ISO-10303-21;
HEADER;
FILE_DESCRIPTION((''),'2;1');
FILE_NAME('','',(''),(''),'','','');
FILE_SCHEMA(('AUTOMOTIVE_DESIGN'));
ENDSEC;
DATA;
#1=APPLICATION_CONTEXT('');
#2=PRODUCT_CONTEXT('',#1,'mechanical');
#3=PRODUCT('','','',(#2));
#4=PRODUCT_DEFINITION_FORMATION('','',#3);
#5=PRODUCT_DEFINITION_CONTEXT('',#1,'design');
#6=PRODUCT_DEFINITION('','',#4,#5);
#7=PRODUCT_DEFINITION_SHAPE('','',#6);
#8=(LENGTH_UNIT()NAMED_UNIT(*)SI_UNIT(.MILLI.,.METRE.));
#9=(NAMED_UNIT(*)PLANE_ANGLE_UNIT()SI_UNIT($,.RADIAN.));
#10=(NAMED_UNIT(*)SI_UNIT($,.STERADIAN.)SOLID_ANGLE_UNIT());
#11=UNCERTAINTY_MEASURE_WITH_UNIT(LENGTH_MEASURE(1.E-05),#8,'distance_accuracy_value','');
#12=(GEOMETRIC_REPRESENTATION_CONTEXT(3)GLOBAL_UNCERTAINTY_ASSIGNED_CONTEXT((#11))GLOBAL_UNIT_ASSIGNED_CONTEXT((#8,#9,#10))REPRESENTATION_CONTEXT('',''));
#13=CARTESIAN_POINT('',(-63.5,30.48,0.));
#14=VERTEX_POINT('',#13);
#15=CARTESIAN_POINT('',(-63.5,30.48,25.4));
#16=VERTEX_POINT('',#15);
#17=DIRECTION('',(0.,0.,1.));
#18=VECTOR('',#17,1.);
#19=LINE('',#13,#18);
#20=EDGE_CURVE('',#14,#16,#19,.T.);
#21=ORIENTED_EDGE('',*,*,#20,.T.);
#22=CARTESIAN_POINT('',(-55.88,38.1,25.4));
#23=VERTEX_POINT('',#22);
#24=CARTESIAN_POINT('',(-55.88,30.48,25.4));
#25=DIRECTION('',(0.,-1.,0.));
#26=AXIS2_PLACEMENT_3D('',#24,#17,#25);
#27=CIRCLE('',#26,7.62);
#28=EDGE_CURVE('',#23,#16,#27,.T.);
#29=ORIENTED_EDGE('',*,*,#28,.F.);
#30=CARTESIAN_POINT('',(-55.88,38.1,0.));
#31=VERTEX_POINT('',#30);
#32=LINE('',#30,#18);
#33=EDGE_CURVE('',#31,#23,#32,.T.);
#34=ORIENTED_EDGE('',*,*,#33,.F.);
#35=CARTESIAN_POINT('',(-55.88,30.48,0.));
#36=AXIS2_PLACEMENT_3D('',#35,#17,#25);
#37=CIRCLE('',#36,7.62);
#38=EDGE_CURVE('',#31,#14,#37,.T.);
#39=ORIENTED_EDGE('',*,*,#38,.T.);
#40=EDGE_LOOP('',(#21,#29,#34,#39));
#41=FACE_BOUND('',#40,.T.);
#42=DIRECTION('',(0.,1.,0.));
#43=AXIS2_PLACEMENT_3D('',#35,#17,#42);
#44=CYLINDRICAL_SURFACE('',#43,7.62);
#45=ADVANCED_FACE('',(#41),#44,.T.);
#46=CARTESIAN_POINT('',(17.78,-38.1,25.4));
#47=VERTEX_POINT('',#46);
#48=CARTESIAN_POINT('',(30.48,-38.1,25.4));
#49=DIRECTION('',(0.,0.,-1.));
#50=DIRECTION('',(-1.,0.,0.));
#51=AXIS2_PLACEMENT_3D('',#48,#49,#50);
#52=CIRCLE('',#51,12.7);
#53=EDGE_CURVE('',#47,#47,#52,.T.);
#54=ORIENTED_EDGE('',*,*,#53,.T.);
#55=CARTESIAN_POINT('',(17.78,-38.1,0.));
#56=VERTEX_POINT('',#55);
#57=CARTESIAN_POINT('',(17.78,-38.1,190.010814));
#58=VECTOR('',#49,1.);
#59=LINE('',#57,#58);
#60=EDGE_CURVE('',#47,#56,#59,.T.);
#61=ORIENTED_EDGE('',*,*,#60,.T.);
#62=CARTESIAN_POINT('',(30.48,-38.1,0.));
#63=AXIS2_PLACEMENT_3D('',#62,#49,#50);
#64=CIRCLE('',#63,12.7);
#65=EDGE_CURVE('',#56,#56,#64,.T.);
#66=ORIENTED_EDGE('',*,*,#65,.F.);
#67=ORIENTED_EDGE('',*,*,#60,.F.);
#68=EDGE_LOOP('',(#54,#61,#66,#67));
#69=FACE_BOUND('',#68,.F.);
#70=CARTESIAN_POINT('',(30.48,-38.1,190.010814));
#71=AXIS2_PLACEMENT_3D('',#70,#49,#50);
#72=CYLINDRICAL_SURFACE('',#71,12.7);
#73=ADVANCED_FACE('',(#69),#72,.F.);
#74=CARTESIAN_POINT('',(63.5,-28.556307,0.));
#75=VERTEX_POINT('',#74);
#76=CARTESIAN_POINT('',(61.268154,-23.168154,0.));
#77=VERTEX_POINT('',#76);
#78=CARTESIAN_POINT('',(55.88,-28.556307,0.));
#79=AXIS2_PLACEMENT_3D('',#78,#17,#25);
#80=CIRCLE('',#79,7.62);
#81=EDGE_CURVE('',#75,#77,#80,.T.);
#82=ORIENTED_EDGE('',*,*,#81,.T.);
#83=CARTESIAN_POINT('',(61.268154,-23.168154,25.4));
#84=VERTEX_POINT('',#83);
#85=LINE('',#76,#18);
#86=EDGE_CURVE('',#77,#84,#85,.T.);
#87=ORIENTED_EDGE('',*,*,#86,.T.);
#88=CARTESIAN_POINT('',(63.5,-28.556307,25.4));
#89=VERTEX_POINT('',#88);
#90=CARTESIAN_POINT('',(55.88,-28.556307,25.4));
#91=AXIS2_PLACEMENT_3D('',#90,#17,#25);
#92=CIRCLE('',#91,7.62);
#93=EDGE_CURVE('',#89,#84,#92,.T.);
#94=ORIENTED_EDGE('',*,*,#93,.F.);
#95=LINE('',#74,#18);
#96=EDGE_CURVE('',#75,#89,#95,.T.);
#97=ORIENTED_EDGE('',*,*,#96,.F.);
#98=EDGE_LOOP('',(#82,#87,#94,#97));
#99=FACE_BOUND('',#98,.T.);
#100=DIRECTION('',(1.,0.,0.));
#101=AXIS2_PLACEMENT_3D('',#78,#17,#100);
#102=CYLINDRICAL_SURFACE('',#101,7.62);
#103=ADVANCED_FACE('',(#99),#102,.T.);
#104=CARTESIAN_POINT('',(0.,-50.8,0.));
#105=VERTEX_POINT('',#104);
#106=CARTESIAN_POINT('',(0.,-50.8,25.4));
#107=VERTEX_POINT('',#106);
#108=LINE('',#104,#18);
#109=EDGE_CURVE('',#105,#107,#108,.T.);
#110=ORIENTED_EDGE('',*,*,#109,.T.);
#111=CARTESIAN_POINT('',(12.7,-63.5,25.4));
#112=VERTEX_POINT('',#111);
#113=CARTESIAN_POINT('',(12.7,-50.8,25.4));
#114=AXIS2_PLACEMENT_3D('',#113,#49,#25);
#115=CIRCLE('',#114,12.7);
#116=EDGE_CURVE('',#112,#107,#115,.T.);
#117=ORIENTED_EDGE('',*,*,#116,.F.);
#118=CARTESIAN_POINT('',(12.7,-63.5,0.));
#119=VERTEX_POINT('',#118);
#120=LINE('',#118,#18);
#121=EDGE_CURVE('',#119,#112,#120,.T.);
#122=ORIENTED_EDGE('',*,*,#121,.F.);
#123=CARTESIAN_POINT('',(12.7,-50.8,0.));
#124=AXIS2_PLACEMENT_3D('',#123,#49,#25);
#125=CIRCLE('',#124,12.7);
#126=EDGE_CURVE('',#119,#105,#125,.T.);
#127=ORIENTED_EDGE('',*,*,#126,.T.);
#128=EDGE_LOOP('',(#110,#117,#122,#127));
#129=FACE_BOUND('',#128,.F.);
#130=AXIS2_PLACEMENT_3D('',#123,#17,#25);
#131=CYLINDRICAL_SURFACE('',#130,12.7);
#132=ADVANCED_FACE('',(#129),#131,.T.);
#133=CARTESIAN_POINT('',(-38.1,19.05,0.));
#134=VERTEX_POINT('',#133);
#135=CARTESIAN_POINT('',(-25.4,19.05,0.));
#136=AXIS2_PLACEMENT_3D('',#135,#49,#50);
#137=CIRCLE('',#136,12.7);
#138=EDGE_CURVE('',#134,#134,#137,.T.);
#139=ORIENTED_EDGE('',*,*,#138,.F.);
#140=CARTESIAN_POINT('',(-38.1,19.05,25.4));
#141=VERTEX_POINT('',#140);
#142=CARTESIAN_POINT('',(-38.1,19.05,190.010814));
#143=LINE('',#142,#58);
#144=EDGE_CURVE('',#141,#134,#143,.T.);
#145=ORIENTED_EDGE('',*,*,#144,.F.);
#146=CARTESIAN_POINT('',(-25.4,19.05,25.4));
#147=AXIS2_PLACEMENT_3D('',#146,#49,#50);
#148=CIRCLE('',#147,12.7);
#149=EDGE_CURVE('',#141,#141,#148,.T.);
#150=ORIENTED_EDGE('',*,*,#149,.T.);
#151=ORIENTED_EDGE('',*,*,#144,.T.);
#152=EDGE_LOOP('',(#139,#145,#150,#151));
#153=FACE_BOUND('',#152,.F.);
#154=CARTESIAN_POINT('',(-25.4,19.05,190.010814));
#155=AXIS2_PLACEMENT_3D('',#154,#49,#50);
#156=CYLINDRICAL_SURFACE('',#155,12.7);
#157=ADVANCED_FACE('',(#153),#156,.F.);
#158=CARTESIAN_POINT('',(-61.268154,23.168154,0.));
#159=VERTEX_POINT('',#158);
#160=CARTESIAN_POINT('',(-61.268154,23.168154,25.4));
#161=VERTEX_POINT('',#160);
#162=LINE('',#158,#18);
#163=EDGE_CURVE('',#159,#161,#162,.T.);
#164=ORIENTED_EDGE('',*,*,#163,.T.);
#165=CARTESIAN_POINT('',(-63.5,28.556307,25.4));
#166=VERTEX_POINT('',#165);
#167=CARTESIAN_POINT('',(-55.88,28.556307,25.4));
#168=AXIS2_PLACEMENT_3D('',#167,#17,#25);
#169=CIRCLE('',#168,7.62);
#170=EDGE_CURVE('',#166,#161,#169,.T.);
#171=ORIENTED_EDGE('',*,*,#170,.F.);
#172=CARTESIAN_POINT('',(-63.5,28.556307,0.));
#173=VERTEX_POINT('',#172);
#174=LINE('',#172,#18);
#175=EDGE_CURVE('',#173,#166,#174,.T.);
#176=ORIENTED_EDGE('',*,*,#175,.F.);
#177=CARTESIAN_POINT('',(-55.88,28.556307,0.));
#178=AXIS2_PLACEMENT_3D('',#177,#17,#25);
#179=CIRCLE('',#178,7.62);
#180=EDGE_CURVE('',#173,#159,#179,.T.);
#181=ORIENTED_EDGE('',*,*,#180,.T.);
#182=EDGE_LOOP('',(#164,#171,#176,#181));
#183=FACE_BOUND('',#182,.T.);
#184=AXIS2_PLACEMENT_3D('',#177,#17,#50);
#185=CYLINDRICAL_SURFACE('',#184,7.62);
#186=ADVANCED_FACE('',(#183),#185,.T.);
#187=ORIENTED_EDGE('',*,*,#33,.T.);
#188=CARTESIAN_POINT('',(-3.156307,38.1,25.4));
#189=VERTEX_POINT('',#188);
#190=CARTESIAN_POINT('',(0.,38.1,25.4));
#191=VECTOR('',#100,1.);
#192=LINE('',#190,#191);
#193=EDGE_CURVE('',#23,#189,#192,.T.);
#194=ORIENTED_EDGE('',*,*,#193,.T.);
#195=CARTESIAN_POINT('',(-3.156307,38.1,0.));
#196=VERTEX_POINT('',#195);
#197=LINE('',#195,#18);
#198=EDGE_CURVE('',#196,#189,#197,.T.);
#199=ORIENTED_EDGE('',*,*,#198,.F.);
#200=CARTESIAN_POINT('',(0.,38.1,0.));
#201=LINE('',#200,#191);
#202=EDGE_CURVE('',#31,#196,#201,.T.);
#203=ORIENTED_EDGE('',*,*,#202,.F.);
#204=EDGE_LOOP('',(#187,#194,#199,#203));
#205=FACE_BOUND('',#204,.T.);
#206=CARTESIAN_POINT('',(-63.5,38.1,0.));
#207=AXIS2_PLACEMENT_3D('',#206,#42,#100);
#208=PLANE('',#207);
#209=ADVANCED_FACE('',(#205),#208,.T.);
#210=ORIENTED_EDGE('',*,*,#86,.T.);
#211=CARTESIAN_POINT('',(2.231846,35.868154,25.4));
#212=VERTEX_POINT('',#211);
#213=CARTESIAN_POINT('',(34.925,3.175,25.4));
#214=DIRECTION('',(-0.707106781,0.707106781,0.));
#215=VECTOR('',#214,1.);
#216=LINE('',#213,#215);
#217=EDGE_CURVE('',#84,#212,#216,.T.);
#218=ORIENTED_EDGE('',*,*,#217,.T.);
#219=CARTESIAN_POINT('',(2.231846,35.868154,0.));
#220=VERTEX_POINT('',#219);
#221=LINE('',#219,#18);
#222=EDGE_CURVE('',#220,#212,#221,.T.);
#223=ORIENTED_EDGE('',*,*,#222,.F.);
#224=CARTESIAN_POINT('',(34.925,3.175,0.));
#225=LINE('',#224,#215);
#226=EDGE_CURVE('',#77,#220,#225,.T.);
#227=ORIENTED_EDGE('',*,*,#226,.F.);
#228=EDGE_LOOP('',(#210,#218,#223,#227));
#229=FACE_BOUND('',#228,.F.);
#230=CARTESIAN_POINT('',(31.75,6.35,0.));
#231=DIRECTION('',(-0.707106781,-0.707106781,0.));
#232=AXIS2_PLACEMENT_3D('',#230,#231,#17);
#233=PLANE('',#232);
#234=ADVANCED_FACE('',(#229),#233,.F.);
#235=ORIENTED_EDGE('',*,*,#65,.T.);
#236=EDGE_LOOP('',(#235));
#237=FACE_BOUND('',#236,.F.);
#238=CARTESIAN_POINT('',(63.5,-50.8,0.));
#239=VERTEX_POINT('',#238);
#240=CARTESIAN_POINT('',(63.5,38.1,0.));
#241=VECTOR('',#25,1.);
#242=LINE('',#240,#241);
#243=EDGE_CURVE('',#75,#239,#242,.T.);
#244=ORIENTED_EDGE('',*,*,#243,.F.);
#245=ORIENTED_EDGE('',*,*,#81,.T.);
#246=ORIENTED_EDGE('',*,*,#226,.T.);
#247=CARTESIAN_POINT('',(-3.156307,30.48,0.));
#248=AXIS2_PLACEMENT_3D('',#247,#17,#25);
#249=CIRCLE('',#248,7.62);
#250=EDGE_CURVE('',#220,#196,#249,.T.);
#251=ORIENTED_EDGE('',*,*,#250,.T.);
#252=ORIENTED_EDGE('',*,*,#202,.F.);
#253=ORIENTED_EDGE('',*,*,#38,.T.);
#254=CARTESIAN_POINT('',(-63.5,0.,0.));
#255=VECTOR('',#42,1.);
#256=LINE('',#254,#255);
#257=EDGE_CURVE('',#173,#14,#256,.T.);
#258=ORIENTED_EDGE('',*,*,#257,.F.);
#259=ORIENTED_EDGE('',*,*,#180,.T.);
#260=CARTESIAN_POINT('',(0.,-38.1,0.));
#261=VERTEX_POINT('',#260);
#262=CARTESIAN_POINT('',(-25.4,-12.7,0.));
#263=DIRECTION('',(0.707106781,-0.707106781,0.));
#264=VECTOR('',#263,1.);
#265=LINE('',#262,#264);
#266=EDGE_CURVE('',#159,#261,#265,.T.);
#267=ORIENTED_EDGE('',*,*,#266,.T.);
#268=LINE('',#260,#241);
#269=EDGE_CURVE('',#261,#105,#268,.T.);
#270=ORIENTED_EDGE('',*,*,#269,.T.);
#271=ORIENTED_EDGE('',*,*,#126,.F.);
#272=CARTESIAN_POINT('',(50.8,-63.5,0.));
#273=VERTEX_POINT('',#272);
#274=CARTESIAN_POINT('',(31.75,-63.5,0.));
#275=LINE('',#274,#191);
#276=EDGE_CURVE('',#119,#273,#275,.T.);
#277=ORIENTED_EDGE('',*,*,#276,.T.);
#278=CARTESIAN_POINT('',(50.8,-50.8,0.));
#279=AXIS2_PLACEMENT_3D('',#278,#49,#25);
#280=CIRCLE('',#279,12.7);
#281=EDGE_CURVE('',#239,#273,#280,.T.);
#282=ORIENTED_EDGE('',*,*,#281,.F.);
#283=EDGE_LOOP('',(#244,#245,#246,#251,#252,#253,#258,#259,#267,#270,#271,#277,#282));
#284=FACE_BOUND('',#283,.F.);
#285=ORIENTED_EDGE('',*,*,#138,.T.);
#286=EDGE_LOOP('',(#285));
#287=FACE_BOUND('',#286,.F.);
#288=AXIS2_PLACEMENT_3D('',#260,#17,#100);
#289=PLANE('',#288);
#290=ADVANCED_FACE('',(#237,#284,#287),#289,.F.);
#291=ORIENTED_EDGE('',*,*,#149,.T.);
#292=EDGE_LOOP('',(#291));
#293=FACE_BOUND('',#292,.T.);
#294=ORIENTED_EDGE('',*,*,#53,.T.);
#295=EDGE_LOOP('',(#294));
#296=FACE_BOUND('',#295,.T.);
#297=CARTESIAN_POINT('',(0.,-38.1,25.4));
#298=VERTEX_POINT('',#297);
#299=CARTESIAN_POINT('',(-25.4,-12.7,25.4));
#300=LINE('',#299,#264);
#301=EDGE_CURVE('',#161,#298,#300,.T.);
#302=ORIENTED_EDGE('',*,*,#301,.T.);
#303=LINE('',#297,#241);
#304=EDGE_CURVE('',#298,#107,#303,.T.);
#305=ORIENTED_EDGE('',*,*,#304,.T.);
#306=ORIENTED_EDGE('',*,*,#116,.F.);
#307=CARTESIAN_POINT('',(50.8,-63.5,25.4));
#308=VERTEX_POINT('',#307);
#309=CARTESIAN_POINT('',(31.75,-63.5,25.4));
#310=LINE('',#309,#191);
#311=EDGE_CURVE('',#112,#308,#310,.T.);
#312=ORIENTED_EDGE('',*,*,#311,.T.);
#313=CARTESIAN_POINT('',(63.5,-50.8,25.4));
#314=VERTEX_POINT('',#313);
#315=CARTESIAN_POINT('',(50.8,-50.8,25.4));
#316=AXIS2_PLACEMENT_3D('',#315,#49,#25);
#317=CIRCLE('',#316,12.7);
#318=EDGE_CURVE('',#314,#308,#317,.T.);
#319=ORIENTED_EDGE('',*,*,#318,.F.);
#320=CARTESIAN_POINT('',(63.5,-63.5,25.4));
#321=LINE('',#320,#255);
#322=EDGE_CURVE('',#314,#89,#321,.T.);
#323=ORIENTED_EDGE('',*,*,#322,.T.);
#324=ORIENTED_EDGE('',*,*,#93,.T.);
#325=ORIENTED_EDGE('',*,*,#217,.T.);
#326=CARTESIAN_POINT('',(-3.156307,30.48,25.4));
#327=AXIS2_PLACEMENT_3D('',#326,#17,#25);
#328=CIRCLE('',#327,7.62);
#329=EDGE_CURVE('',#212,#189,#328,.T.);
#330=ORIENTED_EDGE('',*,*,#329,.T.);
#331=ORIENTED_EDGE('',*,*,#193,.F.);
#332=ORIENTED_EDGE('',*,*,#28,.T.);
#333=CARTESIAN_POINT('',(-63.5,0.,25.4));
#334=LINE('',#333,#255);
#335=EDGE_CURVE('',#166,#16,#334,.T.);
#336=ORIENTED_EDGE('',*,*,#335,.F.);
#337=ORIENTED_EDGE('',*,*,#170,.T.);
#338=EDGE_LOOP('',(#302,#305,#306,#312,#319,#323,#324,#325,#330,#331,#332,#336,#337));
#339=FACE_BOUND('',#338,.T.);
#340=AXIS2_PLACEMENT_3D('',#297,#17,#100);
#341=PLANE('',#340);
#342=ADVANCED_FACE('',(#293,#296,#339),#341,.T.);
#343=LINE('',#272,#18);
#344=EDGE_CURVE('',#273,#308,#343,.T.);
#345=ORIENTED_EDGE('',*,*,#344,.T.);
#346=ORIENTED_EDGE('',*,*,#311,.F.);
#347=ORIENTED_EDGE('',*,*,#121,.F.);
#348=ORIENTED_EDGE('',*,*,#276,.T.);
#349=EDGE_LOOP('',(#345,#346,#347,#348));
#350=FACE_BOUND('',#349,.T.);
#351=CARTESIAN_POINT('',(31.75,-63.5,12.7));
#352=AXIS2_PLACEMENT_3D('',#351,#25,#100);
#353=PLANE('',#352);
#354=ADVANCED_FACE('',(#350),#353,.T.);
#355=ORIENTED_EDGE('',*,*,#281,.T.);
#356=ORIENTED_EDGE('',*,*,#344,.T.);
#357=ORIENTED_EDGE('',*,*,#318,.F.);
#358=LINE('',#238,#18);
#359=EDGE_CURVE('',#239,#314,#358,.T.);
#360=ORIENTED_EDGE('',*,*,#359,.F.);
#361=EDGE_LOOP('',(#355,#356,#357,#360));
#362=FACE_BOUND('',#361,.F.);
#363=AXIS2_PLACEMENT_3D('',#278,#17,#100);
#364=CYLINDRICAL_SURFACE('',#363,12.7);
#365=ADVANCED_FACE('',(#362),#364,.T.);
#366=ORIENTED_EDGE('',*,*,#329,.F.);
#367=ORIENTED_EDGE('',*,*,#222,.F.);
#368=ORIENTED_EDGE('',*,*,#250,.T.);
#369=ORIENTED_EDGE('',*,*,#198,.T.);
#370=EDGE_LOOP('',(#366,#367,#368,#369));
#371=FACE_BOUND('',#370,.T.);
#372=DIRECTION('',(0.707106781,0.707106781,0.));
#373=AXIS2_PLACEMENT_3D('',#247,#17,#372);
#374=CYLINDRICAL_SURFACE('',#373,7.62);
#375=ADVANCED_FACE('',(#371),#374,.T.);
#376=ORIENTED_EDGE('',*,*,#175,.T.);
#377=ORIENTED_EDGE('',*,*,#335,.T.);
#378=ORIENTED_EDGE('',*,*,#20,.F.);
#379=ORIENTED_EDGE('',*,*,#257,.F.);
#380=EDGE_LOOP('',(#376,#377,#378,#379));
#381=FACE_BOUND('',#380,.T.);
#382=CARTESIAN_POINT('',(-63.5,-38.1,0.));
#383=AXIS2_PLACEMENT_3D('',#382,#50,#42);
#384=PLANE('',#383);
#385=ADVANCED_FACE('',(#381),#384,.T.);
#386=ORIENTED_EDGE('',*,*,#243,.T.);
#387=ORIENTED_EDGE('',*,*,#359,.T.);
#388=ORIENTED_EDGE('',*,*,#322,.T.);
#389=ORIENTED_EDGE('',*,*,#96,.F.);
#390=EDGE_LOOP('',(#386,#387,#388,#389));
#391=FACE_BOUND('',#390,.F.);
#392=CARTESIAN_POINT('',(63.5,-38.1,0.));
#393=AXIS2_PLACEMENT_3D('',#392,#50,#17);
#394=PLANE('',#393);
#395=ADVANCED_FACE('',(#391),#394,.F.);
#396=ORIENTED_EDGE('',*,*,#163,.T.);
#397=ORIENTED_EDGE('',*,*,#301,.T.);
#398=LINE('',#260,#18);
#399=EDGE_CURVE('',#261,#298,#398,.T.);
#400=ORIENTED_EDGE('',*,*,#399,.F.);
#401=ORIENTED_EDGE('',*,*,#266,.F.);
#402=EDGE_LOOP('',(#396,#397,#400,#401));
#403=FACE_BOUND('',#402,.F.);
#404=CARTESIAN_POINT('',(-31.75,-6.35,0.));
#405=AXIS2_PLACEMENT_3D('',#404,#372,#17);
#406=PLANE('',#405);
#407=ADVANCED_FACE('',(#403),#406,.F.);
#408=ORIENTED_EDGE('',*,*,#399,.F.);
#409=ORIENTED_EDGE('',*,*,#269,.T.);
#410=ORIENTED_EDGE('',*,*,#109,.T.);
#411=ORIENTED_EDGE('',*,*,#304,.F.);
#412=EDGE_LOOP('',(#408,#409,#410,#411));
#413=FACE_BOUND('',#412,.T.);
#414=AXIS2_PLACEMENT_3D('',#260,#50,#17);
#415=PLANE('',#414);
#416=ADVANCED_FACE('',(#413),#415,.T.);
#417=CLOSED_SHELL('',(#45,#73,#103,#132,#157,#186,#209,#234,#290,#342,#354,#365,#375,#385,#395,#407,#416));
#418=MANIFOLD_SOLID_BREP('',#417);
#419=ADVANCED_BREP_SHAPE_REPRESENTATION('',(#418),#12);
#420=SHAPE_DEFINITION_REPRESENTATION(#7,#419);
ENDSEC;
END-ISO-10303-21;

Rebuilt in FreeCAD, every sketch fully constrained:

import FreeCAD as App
import Part
import Sketcher
Q = App.Units.Quantity


def edges_at(feature, points):
    """Names of the edges that pass closest to the given points."""
    edges = feature.Shape.Edges
    near = lambda p: min(range(len(edges)), key=lambda i: edges[i].distToShape(Part.Vertex(*p))[0])
    return sorted({f"Edge{near(p) + 1}" for p in points})


def add_polygon(sketch, points):
    """Adds a closed chain of lines whose ends are joined by coincident constraints."""
    first, n = sketch.GeometryCount, len(points)
    for a, b in zip(points, points[1:] + points[:1]):
        sketch.addGeometry(Part.LineSegment(App.Vector(*a, 0), App.Vector(*b, 0)), False)
    for i in range(n):
        sketch.addConstraint(Sketcher.Constraint("Coincident", first + i, 2, first + (i + 1) % n, 1))

doc = App.newDocument("Part")
body = doc.addObject("PartDesign::Body", "Body")

# Sketch on XY plane
sketch1 = body.newObject("Sketcher::SketchObject", "Sketch")
sketch1.AttachmentSupport = (doc.getObject("XY_Plane"), [""])
sketch1.MapMode = "FlatFace"
add_polygon(sketch1, [(-64, 38), (-64, -38), (64, -38), (64, 38)])  # lines 0-3
sketch1.addConstraint(Sketcher.Constraint("Vertical", 0))
sketch1.addConstraint(Sketcher.Constraint("Horizontal", 1))
sketch1.addConstraint(Sketcher.Constraint("Vertical", 2))
sketch1.addConstraint(Sketcher.Constraint("Horizontal", 3))
sketch1.addConstraint(Sketcher.Constraint("Symmetric", 0, 2, 2, 2, -1, 1))
sketch1.addConstraint(Sketcher.Constraint("DistanceX", 1, 1, 1, 2, Q("5 in")))
sketch1.addConstraint(Sketcher.Constraint("DistanceY", 0, 2, 0, 1, Q("3 in")))
pad1 = body.newObject("PartDesign::Pad", "Pad")
pad1.Profile = sketch1
pad1.Length = Q("1 in")
doc.recompute()

chamfer = body.newObject("PartDesign::Chamfer", "Chamfer")
chamfer.Base = (pad1, edges_at(pad1, [(-63.5, -38.1, 12.7)]))
chamfer.Size = Q("2.5 in")

# Sketch on XZ plane
sketch2 = body.newObject("Sketcher::SketchObject", "Sketch001")
sketch2.AttachmentSupport = (doc.getObject("XZ_Plane"), [""])
sketch2.MapMode = "FlatFace"
sketch2.AttachmentOffset = App.Placement(App.Vector(0, 0, 1.5 * 25.4), App.Rotation())
add_polygon(sketch2, [(0, 25), (0, 0), (64, 0), (64, 25)])  # lines 0-3
sketch2.addConstraint(Sketcher.Constraint("Vertical", 0))
sketch2.addConstraint(Sketcher.Constraint("Horizontal", 1))
sketch2.addConstraint(Sketcher.Constraint("Vertical", 2))
sketch2.addConstraint(Sketcher.Constraint("Horizontal", 3))
sketch2.addConstraint(Sketcher.Constraint("Coincident", 0, 2, -1, 1))
sketch2.addConstraint(Sketcher.Constraint("DistanceY", 0, 2, 0, 1, Q("1 in")))
sketch2.addConstraint(Sketcher.Constraint("DistanceX", 1, 1, 1, 2, Q("2.5 in")))
pad2 = body.newObject("PartDesign::Pad", "Pad001")
pad2.Profile = sketch2
pad2.Length = Q("1 in")
doc.recompute()

chamfer2 = body.newObject("PartDesign::Chamfer", "Chamfer001")
chamfer2.Base = (pad2, edges_at(pad2, [(63.5, 38.1, 12.7)]))
chamfer2.Size = Q("2.5 in")
doc.recompute()

fillet = body.newObject("PartDesign::Fillet", "Fillet")
fillet.Base = (chamfer2, edges_at(chamfer2, [(63.5, -63.5, 12.7), (0, -63.5, 12.7)]))
fillet.Radius = Q("0.5 in")
doc.recompute()

fillet2 = body.newObject("PartDesign::Fillet", "Fillet001")
fillet2.Base = (fillet, edges_at(fillet, [
    (-63.5, 25.4, 12.7),
    (-63.5, 38.1, 12.7),
    (0, 38.1, 12.7),
    (63.5, -25.4, 12.7),
]))
fillet2.Radius = Q("0.3 in")

# Sketch on XY plane
sketch3 = body.newObject("Sketcher::SketchObject", "Sketch002")
sketch3.AttachmentSupport = (doc.getObject("XY_Plane"), [""])
sketch3.MapMode = "FlatFace"
sketch3.AttachmentOffset = App.Placement(App.Vector(0, 0, 1 * 25.4), App.Rotation())
sketch3.addGeometry(Part.Circle(App.Vector(30, -38, 0), App.Vector(0, 0, 1), 13), False)
sketch3.addConstraint(Sketcher.Constraint("Diameter", 0, Q("1 in")))
sketch3.addConstraint(Sketcher.Constraint("DistanceX", -1, 1, 0, 3, Q("1.2 in")))
sketch3.addConstraint(Sketcher.Constraint("DistanceY", 0, 3, -1, 1, Q("1.5 in")))
doc.recompute()
hole = body.newObject("PartDesign::Hole", "Hole")
hole.Profile = sketch3
hole.ThreadType = "None"
hole.Diameter = Q("1 in")
hole.DepthType = "ThroughAll"

# Sketch on XY plane
sketch4 = body.newObject("Sketcher::SketchObject", "Sketch003")
sketch4.AttachmentSupport = (doc.getObject("XY_Plane"), [""])
sketch4.MapMode = "FlatFace"
sketch4.AttachmentOffset = App.Placement(App.Vector(0, 0, 1 * 25.4), App.Rotation())
sketch4.addGeometry(Part.Circle(App.Vector(-25, 19, 0), App.Vector(0, 0, 1), 13), False)
sketch4.addConstraint(Sketcher.Constraint("Diameter", 0, Q("1 in")))
sketch4.addConstraint(Sketcher.Constraint("DistanceX", 0, 3, -1, 1, Q("1 in")))
sketch4.addConstraint(Sketcher.Constraint("DistanceY", -1, 1, 0, 3, Q("0.75 in")))
doc.recompute()
hole2 = body.newObject("PartDesign::Hole", "Hole001")
hole2.Profile = sketch4
hole2.ThreadType = "None"
hole2.Diameter = Q("1 in")
hole2.DepthType = "ThroughAll"

doc.recompute()
